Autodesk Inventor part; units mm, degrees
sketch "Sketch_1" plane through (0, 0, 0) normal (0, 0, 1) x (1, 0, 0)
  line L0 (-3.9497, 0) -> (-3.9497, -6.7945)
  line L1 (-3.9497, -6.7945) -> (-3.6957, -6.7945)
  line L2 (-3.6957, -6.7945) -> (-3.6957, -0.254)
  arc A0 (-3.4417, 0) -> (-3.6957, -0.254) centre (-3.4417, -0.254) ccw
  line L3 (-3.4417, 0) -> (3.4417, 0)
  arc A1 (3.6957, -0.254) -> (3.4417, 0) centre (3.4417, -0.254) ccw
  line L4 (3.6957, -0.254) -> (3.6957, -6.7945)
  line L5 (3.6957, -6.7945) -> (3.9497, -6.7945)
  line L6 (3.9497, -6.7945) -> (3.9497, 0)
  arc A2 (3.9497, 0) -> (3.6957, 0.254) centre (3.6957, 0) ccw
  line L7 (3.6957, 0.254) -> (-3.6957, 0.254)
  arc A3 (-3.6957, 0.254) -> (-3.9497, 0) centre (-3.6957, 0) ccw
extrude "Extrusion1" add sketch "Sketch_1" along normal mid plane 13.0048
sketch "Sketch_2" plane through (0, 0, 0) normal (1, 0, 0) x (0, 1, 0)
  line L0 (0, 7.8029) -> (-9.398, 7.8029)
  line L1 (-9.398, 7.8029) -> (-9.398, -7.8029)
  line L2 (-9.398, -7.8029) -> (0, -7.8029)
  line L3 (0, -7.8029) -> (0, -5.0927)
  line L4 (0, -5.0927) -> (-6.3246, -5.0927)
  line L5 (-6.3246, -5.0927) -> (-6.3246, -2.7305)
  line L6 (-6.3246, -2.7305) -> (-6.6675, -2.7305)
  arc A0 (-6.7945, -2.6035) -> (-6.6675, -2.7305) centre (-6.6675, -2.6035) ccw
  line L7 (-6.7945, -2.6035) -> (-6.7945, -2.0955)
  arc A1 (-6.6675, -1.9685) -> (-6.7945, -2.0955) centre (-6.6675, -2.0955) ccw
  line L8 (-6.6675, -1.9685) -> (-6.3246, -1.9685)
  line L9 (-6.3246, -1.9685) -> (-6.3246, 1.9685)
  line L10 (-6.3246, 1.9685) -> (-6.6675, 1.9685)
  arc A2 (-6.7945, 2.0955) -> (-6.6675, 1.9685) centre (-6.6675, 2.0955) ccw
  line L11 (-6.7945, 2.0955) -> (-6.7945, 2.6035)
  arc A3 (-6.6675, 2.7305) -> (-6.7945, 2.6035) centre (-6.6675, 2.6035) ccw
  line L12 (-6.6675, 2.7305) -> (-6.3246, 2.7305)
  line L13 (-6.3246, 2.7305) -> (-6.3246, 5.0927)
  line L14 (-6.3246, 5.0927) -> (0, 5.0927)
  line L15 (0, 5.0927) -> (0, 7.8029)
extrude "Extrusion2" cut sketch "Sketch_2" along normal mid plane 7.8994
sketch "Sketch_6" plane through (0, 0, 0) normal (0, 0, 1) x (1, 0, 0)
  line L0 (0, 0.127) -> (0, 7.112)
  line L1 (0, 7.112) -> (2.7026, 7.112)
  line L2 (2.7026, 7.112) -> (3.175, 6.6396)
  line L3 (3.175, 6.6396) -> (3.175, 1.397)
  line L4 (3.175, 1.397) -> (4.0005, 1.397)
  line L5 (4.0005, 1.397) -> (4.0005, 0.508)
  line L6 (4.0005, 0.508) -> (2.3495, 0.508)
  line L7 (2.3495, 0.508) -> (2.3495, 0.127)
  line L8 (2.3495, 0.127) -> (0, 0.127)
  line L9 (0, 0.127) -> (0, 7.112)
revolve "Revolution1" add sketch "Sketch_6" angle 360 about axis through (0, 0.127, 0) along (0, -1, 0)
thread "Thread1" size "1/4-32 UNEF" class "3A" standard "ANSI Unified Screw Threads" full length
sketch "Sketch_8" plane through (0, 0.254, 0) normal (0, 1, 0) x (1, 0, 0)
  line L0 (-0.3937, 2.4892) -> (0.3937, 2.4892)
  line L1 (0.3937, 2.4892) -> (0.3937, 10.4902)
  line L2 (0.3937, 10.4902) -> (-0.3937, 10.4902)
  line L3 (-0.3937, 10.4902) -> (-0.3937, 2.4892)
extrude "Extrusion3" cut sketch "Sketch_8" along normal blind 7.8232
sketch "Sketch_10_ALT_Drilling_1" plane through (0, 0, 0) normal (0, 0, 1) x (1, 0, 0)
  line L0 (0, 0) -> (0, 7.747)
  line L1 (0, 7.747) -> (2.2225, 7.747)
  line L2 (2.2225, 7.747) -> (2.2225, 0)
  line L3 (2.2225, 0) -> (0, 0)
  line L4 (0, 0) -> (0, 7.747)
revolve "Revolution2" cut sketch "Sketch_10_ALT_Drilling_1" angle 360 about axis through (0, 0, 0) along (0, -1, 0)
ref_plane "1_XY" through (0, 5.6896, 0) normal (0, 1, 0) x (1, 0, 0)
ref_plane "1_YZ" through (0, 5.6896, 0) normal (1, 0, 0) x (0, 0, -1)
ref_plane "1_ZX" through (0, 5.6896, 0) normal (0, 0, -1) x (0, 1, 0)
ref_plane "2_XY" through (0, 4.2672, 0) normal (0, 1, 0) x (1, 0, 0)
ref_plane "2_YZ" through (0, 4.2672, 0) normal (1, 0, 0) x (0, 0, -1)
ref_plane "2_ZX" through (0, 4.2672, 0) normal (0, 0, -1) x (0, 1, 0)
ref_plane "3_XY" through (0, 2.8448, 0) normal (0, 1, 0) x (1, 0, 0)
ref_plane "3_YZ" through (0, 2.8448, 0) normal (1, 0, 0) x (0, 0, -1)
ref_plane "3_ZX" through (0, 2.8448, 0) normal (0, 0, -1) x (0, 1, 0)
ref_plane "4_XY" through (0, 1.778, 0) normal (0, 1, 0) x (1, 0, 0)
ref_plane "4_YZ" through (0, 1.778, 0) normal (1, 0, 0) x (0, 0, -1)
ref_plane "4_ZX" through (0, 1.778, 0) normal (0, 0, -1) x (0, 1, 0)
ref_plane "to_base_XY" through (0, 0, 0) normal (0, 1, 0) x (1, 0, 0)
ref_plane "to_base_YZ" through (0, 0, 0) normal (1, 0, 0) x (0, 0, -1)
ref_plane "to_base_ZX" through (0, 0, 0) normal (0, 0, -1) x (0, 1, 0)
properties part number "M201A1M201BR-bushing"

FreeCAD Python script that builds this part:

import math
import FreeCAD as App
import Part
import Sketcher

V = App.Vector
Q = App.Units.Quantity

doc = App.newDocument("Part")
body = doc.addObject("PartDesign::Body", "Body")

sketch1 = body.newObject("Sketcher::SketchObject", "Sketch")
sketch1.AttachmentSupport = (doc.getObject("XY_Plane"), [""])
sketch1.MapMode = "FlatFace"
sketch1.addGeometry([
    Part.ArcOfCircle(Part.Circle(V(-3.7, 0, 0), V(0, 0, 1), 0.25), math.radians(90), math.radians(180)),
    Part.LineSegment(V(-3.95, 0, 0), V(-3.95, -6.79, 0)),
    Part.LineSegment(V(-3.95, -6.79, 0), V(-3.7, -6.79, 0)),
    Part.LineSegment(V(-3.7, -6.79, 0), V(-3.7, -0.25, 0)),
    Part.ArcOfCircle(Part.Circle(V(-3.44, -0.25, 0), V(0, 0, 1), 0.25), math.radians(90), math.radians(180)),
    Part.LineSegment(V(-3.44, 0, 0), V(3.44, 0, 0)),
    Part.ArcOfCircle(Part.Circle(V(3.44, -0.25, 0), V(0, 0, 1), 0.25), math.radians(0), math.radians(90)),
    Part.LineSegment(V(3.7, -0.25, 0), V(3.7, -6.79, 0)),
    Part.LineSegment(V(3.7, -6.79, 0), V(3.95, -6.79, 0)),
    Part.LineSegment(V(3.95, -6.79, 0), V(3.95, 0, 0)),
    Part.ArcOfCircle(Part.Circle(V(3.7, 0, 0), V(0, 0, 1), 0.25), math.radians(0), math.radians(90)),
    Part.LineSegment(V(3.7, 0.25, 0), V(-3.7, 0.25, 0)),
], False)
sketch1.addConstraint([
    Sketcher.Constraint("Tangent", 0, 2, 1, 1),
    Sketcher.Constraint("Coincident", 1, 2, 2, 1),
    Sketcher.Constraint("Coincident", 2, 2, 3, 1),
    Sketcher.Constraint("Tangent", 3, 2, 4, 2),
    Sketcher.Constraint("Tangent", 4, 1, 5, 1),
    Sketcher.Constraint("Tangent", 5, 2, 6, 2),
    Sketcher.Constraint("Tangent", 6, 1, 7, 1),
    Sketcher.Constraint("Coincident", 7, 2, 8, 1),
    Sketcher.Constraint("Coincident", 8, 2, 9, 1),
    Sketcher.Constraint("Tangent", 9, 2, 10, 1),
    Sketcher.Constraint("Tangent", 10, 2, 11, 1),
    Sketcher.Constraint("Tangent", 11, 2, 0, 1),
    Sketcher.Constraint("Vertical", 1),
    Sketcher.Constraint("Horizontal", 2),
    Sketcher.Constraint("Vertical", 3),
    Sketcher.Constraint("Horizontal", 5),
    Sketcher.Constraint("Vertical", 7),
    Sketcher.Constraint("Horizontal", 8),
    Sketcher.Constraint("Vertical", 9),
    Sketcher.Constraint("Horizontal", 11),
    Sketcher.Constraint("Equal", 0, 4),
    Sketcher.Constraint("Equal", 4, 6),
    Sketcher.Constraint("Equal", 6, 10),
    Sketcher.Constraint("Symmetric", 0, 3, 10, 3, -1, 1),
    Sketcher.Constraint("Symmetric", 4, 1, 5, 2, -1, 1),
    Sketcher.Constraint("Horizontal", 2, 2, 7, 2),
    Sketcher.Constraint("Vertical", 0, 3, 2, 2),
    Sketcher.Constraint("Radius", 0, Q("0.01 in")),
    Sketcher.Constraint("DistanceX", 5, 1, 5, 2, Q("0.271 in")),
    Sketcher.Constraint("DistanceY", 1, 2, 1, 1, Q("0.2675 in")),
])
pad1 = body.newObject("PartDesign::Pad", "Pad")
pad1.Profile = sketch1
pad1.Length = Q("0.512 in")
pad1.Midplane = True

sketch2 = body.newObject("Sketcher::SketchObject", "Sketch001")
sketch2.AttachmentSupport = (doc.getObject("YZ_Plane"), [""])
sketch2.MapMode = "FlatFace"
sketch2.addGeometry([
    Part.LineSegment(V(0, 5.09, 0), V(0, 7.8, 0)),
    Part.LineSegment(V(0, 7.8, 0), V(-9.4, 7.8, 0)),
    Part.LineSegment(V(-9.4, 7.8, 0), V(-9.4, -7.8, 0)),
    Part.LineSegment(V(-9.4, -7.8, 0), V(0, -7.8, 0)),
    Part.LineSegment(V(0, -7.8, 0), V(0, -5.09, 0)),
    Part.LineSegment(V(0, -5.09, 0), V(-6.32, -5.09, 0)),
    Part.LineSegment(V(-6.32, -5.09, 0), V(-6.32, -2.73, 0)),
    Part.LineSegment(V(-6.32, -2.73, 0), V(-6.67, -2.73, 0)),
    Part.ArcOfCircle(Part.Circle(V(-6.67, -2.6, 0), V(0, 0, 1), 0.13), math.radians(180), math.radians(270)),
    Part.LineSegment(V(-6.79, -2.6, 0), V(-6.79, -2.1, 0)),
    Part.ArcOfCircle(Part.Circle(V(-6.67, -2.1, 0), V(0, 0, 1), 0.13), math.radians(90), math.radians(180)),
    Part.LineSegment(V(-6.67, -1.97, 0), V(-6.32, -1.97, 0)),
    Part.LineSegment(V(-6.32, -1.97, 0), V(-6.32, 1.97, 0)),
    Part.LineSegment(V(-6.32, 1.97, 0), V(-6.67, 1.97, 0)),
    Part.ArcOfCircle(Part.Circle(V(-6.67, 2.1, 0), V(0, 0, 1), 0.13), math.radians(180), math.radians(270)),
    Part.LineSegment(V(-6.79, 2.1, 0), V(-6.79, 2.6, 0)),
    Part.ArcOfCircle(Part.Circle(V(-6.67, 2.6, 0), V(0, 0, 1), 0.13), math.radians(90), math.radians(180)),
    Part.LineSegment(V(-6.67, 2.73, 0), V(-6.32, 2.73, 0)),
    Part.LineSegment(V(-6.32, 2.73, 0), V(-6.32, 5.09, 0)),
    Part.LineSegment(V(-6.32, 5.09, 0), V(0, 5.09, 0)),
], False)
sketch2.addConstraint([
    Sketcher.Constraint("Coincident", 0, 2, 1, 1),
    Sketcher.Constraint("Coincident", 1, 2, 2, 1),
    Sketcher.Constraint("Coincident", 2, 2, 3, 1),
    Sketcher.Constraint("Coincident", 3, 2, 4, 1),
    Sketcher.Constraint("Coincident", 4, 2, 5, 1),
    Sketcher.Constraint("Coincident", 5, 2, 6, 1),
    Sketcher.Constraint("Coincident", 6, 2, 7, 1),
    Sketcher.Constraint("Tangent", 7, 2, 8, 2),
    Sketcher.Constraint("Tangent", 8, 1, 9, 1),
    Sketcher.Constraint("Tangent", 9, 2, 10, 2),
    Sketcher.Constraint("Tangent", 10, 1, 11, 1),
    Sketcher.Constraint("Coincident", 11, 2, 12, 1),
    Sketcher.Constraint("Coincident", 12, 2, 13, 1),
    Sketcher.Constraint("Tangent", 13, 2, 14, 2),
    Sketcher.Constraint("Tangent", 14, 1, 15, 1),
    Sketcher.Constraint("Tangent", 15, 2, 16, 2),
    Sketcher.Constraint("Tangent", 16, 1, 17, 1),
    Sketcher.Constraint("Coincident", 17, 2, 18, 1),
    Sketcher.Constraint("Coincident", 18, 2, 19, 1),
    Sketcher.Constraint("Coincident", 19, 2, 0, 1),
    Sketcher.Constraint("Vertical", 0),
    Sketcher.Constraint("Horizontal", 1),
    Sketcher.Constraint("Vertical", 2),
    Sketcher.Constraint("Horizontal", 3),
    Sketcher.Constraint("Vertical", 4),
    Sketcher.Constraint("Horizontal", 5),
    Sketcher.Constraint("Vertical", 6),
    Sketcher.Constraint("Horizontal", 7),
    Sketcher.Constraint("Vertical", 9),
    Sketcher.Constraint("Horizontal", 11),
    Sketcher.Constraint("Vertical", 12),
    Sketcher.Constraint("Horizontal", 13),
    Sketcher.Constraint("Vertical", 15),
    Sketcher.Constraint("Horizontal", 17),
    Sketcher.Constraint("Vertical", 18),
    Sketcher.Constraint("Horizontal", 19),
    Sketcher.Constraint("Equal", 8, 10),
    Sketcher.Constraint("Equal", 10, 14),
    Sketcher.Constraint("Equal", 14, 16),
    Sketcher.Constraint("Symmetric", 0, 2, 3, 2, -1, 1),
    Sketcher.Constraint("Symmetric", 10, 3, 14, 3, -1),
    Sketcher.Constraint("Symmetric", 6, 2, 17, 2, -1),
    Sketcher.Constraint("Symmetric", 4, 2, 19, 2, -1),
    Sketcher.Constraint("Vertical", 6, 2, 11, 2),
    Sketcher.Constraint("Radius", 8, Q("0.005 in")),
    Sketcher.Constraint("DistanceX", 1, 2, 1, 1, Q("0.37 in")),
    Sketcher.Constraint("DistanceY", 9, 1, 9, 2, Q("0.02 in")),
    Sketcher.Constraint("DistanceX", 5, 2, 5, 1, Q("0.249 in")),
    Sketcher.Constraint("DistanceY", 6, 1, 6, 2, Q("0.093 in")),
    Sketcher.Constraint("DistanceY", 12, 1, 12, 2, Q("0.155 in")),
    Sketcher.Constraint("DistanceX", 7, 2, 7, 1, Q("0.0135 in")),
    Sketcher.Constraint("DistanceY", 0, 1, 0, 2, Q("0.1067 in")),
])
pocket1 = body.newObject("PartDesign::Pocket", "Pocket")
pocket1.Profile = sketch2
pocket1.Length = Q("0.311 in")
pocket1.Midplane = True

sketch3 = body.newObject("Sketcher::SketchObject", "Sketch002")
sketch3.AttachmentSupport = (doc.getObject("XY_Plane"), [""])
sketch3.MapMode = "FlatFace"
sketch3.addGeometry([
    Part.LineSegment(V(0, 7.11, 0), V(0, 0.13, 0)),
    Part.LineSegment(V(0, 0.13, 0), V(2.35, 0.13, 0)),
    Part.LineSegment(V(2.35, 0.13, 0), V(2.35, 0.51, 0)),
    Part.LineSegment(V(2.35, 0.51, 0), V(4, 0.51, 0)),
    Part.LineSegment(V(4, 0.51, 0), V(4, 1.4, 0)),
    Part.LineSegment(V(4, 1.4, 0), V(3.17, 1.4, 0)),
    Part.LineSegment(V(3.17, 1.4, 0), V(3.17, 6.64, 0)),
    Part.LineSegment(V(3.17, 6.64, 0), V(2.7, 7.11, 0)),
    Part.LineSegment(V(2.7, 7.11, 0), V(0, 7.11, 0)),
], False)
sketch3.addConstraint([
    Sketcher.Constraint("Coincident", 0, 2, 1, 1),
    Sketcher.Constraint("Coincident", 1, 2, 2, 1),
    Sketcher.Constraint("Coincident", 2, 2, 3, 1),
    Sketcher.Constraint("Coincident", 3, 2, 4, 1),
    Sketcher.Constraint("Coincident", 4, 2, 5, 1),
    Sketcher.Constraint("Coincident", 5, 2, 6, 1),
    Sketcher.Constraint("Coincident", 6, 2, 7, 1),
    Sketcher.Constraint("Coincident", 7, 2, 8, 1),
    Sketcher.Constraint("Coincident", 8, 2, 0, 1),
    Sketcher.Constraint("Vertical", 0),
    Sketcher.Constraint("Horizontal", 1),
    Sketcher.Constraint("Vertical", 2),
    Sketcher.Constraint("Horizontal", 3),
    Sketcher.Constraint("Vertical", 4),
    Sketcher.Constraint("Horizontal", 5),
    Sketcher.Constraint("Vertical", 6),
    Sketcher.Constraint("Horizontal", 8),
    Sketcher.Constraint("PointOnObject", 0, 2, -2),
    Sketcher.Constraint("Angle", 7, Q("135 deg")),
    Sketcher.Constraint("DistanceX", 3, 1, 3, 2, Q("0.065 in")),
    Sketcher.Constraint("DistanceY", 0, 2, 0, 1, Q("0.275 in")),
    Sketcher.Constraint("DistanceY", 2, 1, 2, 2, Q("0.015 in")),
    Sketcher.Constraint("DistanceY", 4, 1, 4, 2, Q("0.035 in")),
    Sketcher.Constraint("DistanceY", -1, 1, 2, 2, Q("0.02 in")),
    Sketcher.Constraint("DistanceX", 1, 1, 1, 2, Q("0.0925 in")),
    Sketcher.Constraint("DistanceX", 5, 2, 5, 1, Q("0.0325 in")),
    Sketcher.Constraint("DistanceX", 8, 2, 8, 1, Q("0.1064 in")),
])
revolution = body.newObject("PartDesign::Revolution", "Revolution")
revolution.Profile = sketch3
revolution.ReferenceAxis = (sketch3, ["V_Axis"])
revolution.Angle = 360

sketch4 = body.newObject("Sketcher::SketchObject", "Sketch003")
sketch4.AttachmentSupport = (doc.getObject("XZ_Plane"), [""])
sketch4.MapMode = "FlatFace"
sketch4.AttachmentOffset = App.Placement(V(0, 0, -0.01 * 25.4), App.Rotation())
sketch4.addGeometry([
    Part.LineSegment(V(-0.4, -10.5, 0), V(-0.4, -2.5, 0)),
    Part.LineSegment(V(-0.4, -2.5, 0), V(0.4, -2.5, 0)),
    Part.LineSegment(V(0.4, -2.5, 0), V(0.4, -10.5, 0)),
    Part.LineSegment(V(0.4, -10.5, 0), V(-0.4, -10.5, 0)),
], False)
sketch4.addConstraint([
    Sketcher.Constraint("Coincident", 0, 2, 1, 1),
    Sketcher.Constraint("Coincident", 1, 2, 2, 1),
    Sketcher.Constraint("Coincident", 2, 2, 3, 1),
    Sketcher.Constraint("Coincident", 3, 2, 0, 1),
    Sketcher.Constraint("Vertical", 0),
    Sketcher.Constraint("Horizontal", 1),
    Sketcher.Constraint("Vertical", 2),
    Sketcher.Constraint("Horizontal", 3),
    Sketcher.Constraint("DistanceX", 1, 1, 1, 2, Q("0.031 in")),
    Sketcher.Constraint("DistanceY", 0, 1, 0, 2, Q("0.315 in")),
    Sketcher.Constraint("DistanceY", 0, 2, -1, 1, Q("0.098 in")),
    Sketcher.Constraint("DistanceX", 0, 2, -1, 1, Q("0.0155 in")),
])
pocket2 = body.newObject("PartDesign::Pocket", "Pocket001")
pocket2.Profile = sketch4
pocket2.Length = Q("0.308 in")

sketch5 = body.newObject("Sketcher::SketchObject", "Sketch004")
sketch5.AttachmentSupport = (doc.getObject("XY_Plane"), [""])
sketch5.MapMode = "FlatFace"
sketch5.addGeometry([
    Part.LineSegment(V(0, 7.7, 0), V(0, 0, 0)),
    Part.LineSegment(V(0, 0, 0), V(2.2, 0, 0)),
    Part.LineSegment(V(2.2, 0, 0), V(2.2, 7.7, 0)),
    Part.LineSegment(V(2.2, 7.7, 0), V(0, 7.7, 0)),
], False)
sketch5.addConstraint([
    Sketcher.Constraint("Coincident", 0, 2, 1, 1),
    Sketcher.Constraint("Coincident", 1, 2, 2, 1),
    Sketcher.Constraint("Coincident", 2, 2, 3, 1),
    Sketcher.Constraint("Coincident", 3, 2, 0, 1),
    Sketcher.Constraint("Vertical", 0),
    Sketcher.Constraint("Horizontal", 1),
    Sketcher.Constraint("Vertical", 2),
    Sketcher.Constraint("Horizontal", 3),
    Sketcher.Constraint("Coincident", 0, 2, -1, 1),
    Sketcher.Constraint("DistanceY", 0, 2, 0, 1, Q("0.305 in")),
    Sketcher.Constraint("DistanceX", 1, 1, 1, 2, Q("0.0875 in")),
])
groove = body.newObject("PartDesign::Groove", "Groove")
groove.Profile = sketch5
groove.ReferenceAxis = (sketch5, ["V_Axis"])
groove.Angle = 360

doc.recompute()
